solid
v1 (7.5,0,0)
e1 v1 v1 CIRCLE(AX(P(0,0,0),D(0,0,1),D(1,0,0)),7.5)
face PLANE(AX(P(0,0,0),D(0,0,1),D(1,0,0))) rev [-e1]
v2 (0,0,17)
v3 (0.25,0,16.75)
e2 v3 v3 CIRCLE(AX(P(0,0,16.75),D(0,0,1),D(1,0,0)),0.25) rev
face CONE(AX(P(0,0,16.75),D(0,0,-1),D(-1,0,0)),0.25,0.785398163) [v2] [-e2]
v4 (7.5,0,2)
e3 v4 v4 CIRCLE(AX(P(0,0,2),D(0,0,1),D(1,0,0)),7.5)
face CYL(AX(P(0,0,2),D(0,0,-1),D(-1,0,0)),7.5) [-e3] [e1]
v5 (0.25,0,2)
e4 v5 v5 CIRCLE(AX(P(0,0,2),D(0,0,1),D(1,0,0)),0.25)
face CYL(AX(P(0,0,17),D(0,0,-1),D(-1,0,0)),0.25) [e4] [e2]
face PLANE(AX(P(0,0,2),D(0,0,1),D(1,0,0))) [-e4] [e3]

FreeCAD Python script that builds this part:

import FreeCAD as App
import Part
import Sketcher

V = App.Vector


def edges_at(feature, points):
    """Names of the edges that pass closest to the given points."""
    edges = feature.Shape.Edges
    near = lambda p: min(range(len(edges)), key=lambda i: edges[i].distToShape(Part.Vertex(*p))[0])
    return sorted({f"Edge{near(p) + 1}" for p in points})

doc = App.newDocument("Part")
body = doc.addObject("PartDesign::Body", "Body")

# Sketch on XY plane
sketch1 = doc.addObject("Sketcher::SketchObject", "Sketch")
body.addObject(sketch1)
sketch1.AttachmentSupport = (doc.XY_Plane, [""])
sketch1.MapMode = "FlatFace"
sketch1.addGeometry(Part.Circle(V(0, 0, 0), V(0, 0, 1), 8), False)
sketch1.addConstraint([
    Sketcher.Constraint("Coincident", 0, 3, -1, 1),
    Sketcher.Constraint("Diameter", 0, 15.0),
])
pad1 = doc.addObject("PartDesign::Pad", "Pad")
body.addObject(pad1)
pad1.Profile = sketch1
pad1.Length = 2

# Sketch on XY plane
sketch2 = doc.addObject("Sketcher::SketchObject", "Sketch001")
body.addObject(sketch2)
sketch2.AttachmentSupport = (doc.XY_Plane, [""])
sketch2.MapMode = "FlatFace"
sketch2.AttachmentOffset = App.Placement(V(0, 0, 2), App.Rotation())
sketch2.addGeometry(Part.Circle(V(0, 0, 0), V(0, 0, 1), 0.25), False)
sketch2.addConstraint([
    Sketcher.Constraint("Coincident", 0, 3, -1, 1),
    Sketcher.Constraint("Diameter", 0, 0.5),
])
pad2 = doc.addObject("PartDesign::Pad", "Pad001")
body.addObject(pad2)
pad2.Profile = sketch2
pad2.Length = 15
doc.recompute()

chamfer = doc.addObject("PartDesign::Chamfer", "Chamfer")
body.addObject(chamfer)
chamfer.Base = (pad2, edges_at(pad2, [(-0.25, 0, 17)]))
chamfer.Size = 0.25

doc.recompute()
